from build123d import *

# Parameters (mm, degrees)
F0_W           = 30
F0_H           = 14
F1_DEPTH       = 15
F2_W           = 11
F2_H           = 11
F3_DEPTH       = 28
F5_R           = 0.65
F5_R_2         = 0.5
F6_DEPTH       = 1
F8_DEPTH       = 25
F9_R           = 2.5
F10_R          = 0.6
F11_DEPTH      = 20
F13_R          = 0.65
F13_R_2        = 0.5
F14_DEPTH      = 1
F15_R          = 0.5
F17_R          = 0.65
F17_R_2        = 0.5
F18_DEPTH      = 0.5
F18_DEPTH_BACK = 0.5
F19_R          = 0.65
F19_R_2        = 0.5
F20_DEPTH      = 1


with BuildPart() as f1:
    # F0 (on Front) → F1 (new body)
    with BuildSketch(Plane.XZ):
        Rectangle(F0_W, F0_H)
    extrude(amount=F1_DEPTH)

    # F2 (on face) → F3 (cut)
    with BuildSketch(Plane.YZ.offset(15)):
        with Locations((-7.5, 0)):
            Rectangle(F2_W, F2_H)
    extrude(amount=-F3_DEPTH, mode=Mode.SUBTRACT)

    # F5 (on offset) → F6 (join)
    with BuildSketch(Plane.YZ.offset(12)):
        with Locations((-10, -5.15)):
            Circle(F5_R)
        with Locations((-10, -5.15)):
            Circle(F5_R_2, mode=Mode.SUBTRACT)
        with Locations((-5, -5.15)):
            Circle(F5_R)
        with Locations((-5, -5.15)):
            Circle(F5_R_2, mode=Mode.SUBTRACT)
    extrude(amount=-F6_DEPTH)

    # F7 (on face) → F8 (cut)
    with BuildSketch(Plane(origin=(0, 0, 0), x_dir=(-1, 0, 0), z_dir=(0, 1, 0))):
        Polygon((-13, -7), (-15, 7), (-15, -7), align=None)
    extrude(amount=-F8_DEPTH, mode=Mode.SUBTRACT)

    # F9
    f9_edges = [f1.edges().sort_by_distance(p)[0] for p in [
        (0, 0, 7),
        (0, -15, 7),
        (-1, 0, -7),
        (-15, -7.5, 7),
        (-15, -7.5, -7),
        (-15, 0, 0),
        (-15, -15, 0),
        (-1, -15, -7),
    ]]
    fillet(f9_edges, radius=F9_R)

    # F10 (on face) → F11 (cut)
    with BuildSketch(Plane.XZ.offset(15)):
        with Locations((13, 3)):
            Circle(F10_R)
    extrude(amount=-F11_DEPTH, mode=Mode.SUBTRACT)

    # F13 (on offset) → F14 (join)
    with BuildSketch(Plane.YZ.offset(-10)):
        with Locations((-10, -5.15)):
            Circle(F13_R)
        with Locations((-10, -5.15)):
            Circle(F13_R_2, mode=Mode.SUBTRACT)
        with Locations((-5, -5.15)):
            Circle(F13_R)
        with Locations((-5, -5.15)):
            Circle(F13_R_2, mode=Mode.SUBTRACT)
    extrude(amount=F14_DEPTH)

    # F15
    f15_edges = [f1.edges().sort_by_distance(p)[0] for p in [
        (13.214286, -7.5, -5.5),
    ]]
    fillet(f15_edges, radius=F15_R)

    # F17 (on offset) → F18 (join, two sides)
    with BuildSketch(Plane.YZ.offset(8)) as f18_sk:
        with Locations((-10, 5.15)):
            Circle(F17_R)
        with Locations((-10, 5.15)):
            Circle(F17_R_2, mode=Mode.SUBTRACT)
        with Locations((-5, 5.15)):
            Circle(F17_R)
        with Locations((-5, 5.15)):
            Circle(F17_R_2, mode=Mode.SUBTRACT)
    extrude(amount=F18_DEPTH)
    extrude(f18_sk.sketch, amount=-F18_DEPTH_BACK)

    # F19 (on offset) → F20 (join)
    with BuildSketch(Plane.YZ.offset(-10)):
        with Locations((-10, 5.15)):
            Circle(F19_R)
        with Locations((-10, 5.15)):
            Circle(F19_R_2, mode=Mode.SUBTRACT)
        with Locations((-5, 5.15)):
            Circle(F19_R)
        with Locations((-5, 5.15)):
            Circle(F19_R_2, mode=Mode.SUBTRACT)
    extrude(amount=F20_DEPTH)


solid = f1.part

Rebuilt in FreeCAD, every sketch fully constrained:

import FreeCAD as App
import Part
import Sketcher


def edges_at(feature, points):
    """Names of the edges that pass closest to the given points."""
    edges = feature.Shape.Edges
    near = lambda p: min(range(len(edges)), key=lambda i: edges[i].distToShape(Part.Vertex(*p))[0])
    return sorted({f"Edge{near(p) + 1}" for p in points})


def add_polygon(sketch, points):
    """Adds a closed chain of lines whose ends are joined by coincident constraints."""
    first, n = sketch.GeometryCount, len(points)
    for a, b in zip(points, points[1:] + points[:1]):
        sketch.addGeometry(Part.LineSegment(App.Vector(*a, 0), App.Vector(*b, 0)), False)
    for i in range(n):
        sketch.addConstraint(Sketcher.Constraint("Coincident", first + i, 2, first + (i + 1) % n, 1))

doc = App.newDocument("Part")
body = doc.addObject("PartDesign::Body", "Body")

sketch1 = body.newObject("Sketcher::SketchObject", "Sketch")
sketch1.AttachmentSupport = (doc.getObject("XZ_Plane"), [""])
sketch1.MapMode = "FlatFace"
add_polygon(sketch1, [(-15, 7), (-15, -7), (15, -7), (15, 7)])
sketch1.addConstraint(Sketcher.Constraint("Vertical", 0))
sketch1.addConstraint(Sketcher.Constraint("Horizontal", 1))
sketch1.addConstraint(Sketcher.Constraint("Vertical", 2))
sketch1.addConstraint(Sketcher.Constraint("Horizontal", 3))
sketch1.addConstraint(Sketcher.Constraint("Symmetric", 0, 2, 2, 2, -1, 1))
sketch1.addConstraint(Sketcher.Constraint("DistanceX", 1, 1, 1, 2, 30.0))
sketch1.addConstraint(Sketcher.Constraint("DistanceY", 0, 2, 0, 1, 14.0))
pad1 = body.newObject("PartDesign::Pad", "Pad")
pad1.Profile = sketch1
pad1.Length = 15

sketch2 = body.newObject("Sketcher::SketchObject", "Sketch001")
sketch2.AttachmentSupport = (doc.getObject("YZ_Plane"), [""])
sketch2.MapMode = "FlatFace"
sketch2.AttachmentOffset = App.Placement(App.Vector(0, 0, 15), App.Rotation())
add_polygon(sketch2, [(-13, 6), (-13, -6), (-2, -6), (-2, 6)])
sketch2.addConstraint(Sketcher.Constraint("Vertical", 0))
sketch2.addConstraint(Sketcher.Constraint("Horizontal", 1))
sketch2.addConstraint(Sketcher.Constraint("Vertical", 2))
sketch2.addConstraint(Sketcher.Constraint("Horizontal", 3))
sketch2.addConstraint(Sketcher.Constraint("Equal", 3, 0))
sketch2.addConstraint(Sketcher.Constraint("DistanceX", 1, 1, 1, 2, 11.0))
sketch2.addConstraint(Sketcher.Constraint("DistanceX", 0, 2, -1, 1, 13.0))
sketch2.addConstraint(Sketcher.Constraint("DistanceY", 0, 2, -1, 1, 5.5))
pocket1 = body.newObject("PartDesign::Pocket", "Pocket")
pocket1.Profile = sketch2
pocket1.Length = 28

sketch3 = body.newObject("Sketcher::SketchObject", "Sketch002")
sketch3.AttachmentSupport = (doc.getObject("YZ_Plane"), [""])
sketch3.MapMode = "FlatFace"
sketch3.AttachmentOffset = App.Placement(App.Vector(0, 0, 12), App.Rotation())
sketch3.addGeometry(Part.Circle(App.Vector(-10, -5.2, 0), App.Vector(0, 0, 1), 0.7), False)
sketch3.addGeometry(Part.Circle(App.Vector(-10, -5.2, 0), App.Vector(0, 0, 1), 0.5), False)
sketch3.addGeometry(Part.Circle(App.Vector(-5, -5.2, 0), App.Vector(0, 0, 1), 0.7), False)
sketch3.addGeometry(Part.Circle(App.Vector(-5, -5.2, 0), App.Vector(0, 0, 1), 0.5), False)
sketch3.addConstraint(Sketcher.Constraint("Coincident", 1, 3, 0, 3))
sketch3.addConstraint(Sketcher.Constraint("Coincident", 3, 3, 2, 3))
sketch3.addConstraint(Sketcher.Constraint("Equal", 0, 2))
sketch3.addConstraint(Sketcher.Constraint("Equal", 1, 3))
sketch3.addConstraint(Sketcher.Constraint("Horizontal", 1, 3, 2, 3))
sketch3.addConstraint(Sketcher.Constraint("Diameter", 1, 1.0))
sketch3.addConstraint(Sketcher.Constraint("Diameter", 0, 1.3))
sketch3.addConstraint(Sketcher.Constraint("DistanceX", 0, 3, -1, 1, 10.0))
sketch3.addConstraint(Sketcher.Constraint("DistanceX", 2, 3, -1, 1, 5.0))
sketch3.addConstraint(Sketcher.Constraint("DistanceY", 0, 3, -1, 1, 5.15))
pad2 = body.newObject("PartDesign::Pad", "Pad001")
pad2.Profile = sketch3
pad2.Length = 1
pad2.Reversed = True

sketch4 = body.newObject("Sketcher::SketchObject", "Sketch003")
sketch4.AttachmentSupport = (doc.getObject("XZ_Plane"), [""])
sketch4.MapMode = "FlatFace"
add_polygon(sketch4, [(13, -7), (15, 7), (15, -7)])
sketch4.addConstraint(Sketcher.Constraint("Vertical", 1))
sketch4.addConstraint(Sketcher.Constraint("Horizontal", 2))
sketch4.addConstraint(Sketcher.Constraint("DistanceX", 2, 2, 2, 1, 2.0))
sketch4.addConstraint(Sketcher.Constraint("DistanceY", 1, 2, 1, 1, 14.0))
sketch4.addConstraint(Sketcher.Constraint("DistanceX", -1, 1, 0, 2, 15.0))
sketch4.addConstraint(Sketcher.Constraint("DistanceY", -1, 1, 0, 2, 7.0))
pocket2 = body.newObject("PartDesign::Pocket", "Pocket001")
pocket2.Profile = sketch4
pocket2.Length = 25
pocket2.Reversed = True
doc.recompute()

fillet = body.newObject("PartDesign::Fillet", "Fillet")
fillet.Base = (pocket2, edges_at(pocket2, [
    (0, 0, 7),
    (0, -15, 7),
    (-1, 0, -7),
    (-15, -7.5, 7),
    (-15, -7.5, -7),
    (-15, 0, 0),
    (-15, -15, 0),
    (-1, -15, -7),
]))
fillet.Radius = 2.5

sketch5 = body.newObject("Sketcher::SketchObject", "Sketch004")
sketch5.AttachmentSupport = (doc.getObject("XZ_Plane"), [""])
sketch5.MapMode = "FlatFace"
sketch5.AttachmentOffset = App.Placement(App.Vector(0, 0, 15), App.Rotation())
sketch5.addGeometry(Part.Circle(App.Vector(13, 3, 0), App.Vector(0, 0, 1), 0.6), False)
sketch5.addConstraint(Sketcher.Constraint("Diameter", 0, 1.2))
sketch5.addConstraint(Sketcher.Constraint("DistanceX", -1, 1, 0, 3, 13.0))
sketch5.addConstraint(Sketcher.Constraint("DistanceY", -1, 1, 0, 3, 3.0))
pocket3 = body.newObject("PartDesign::Pocket", "Pocket002")
pocket3.Profile = sketch5
pocket3.Length = 20

sketch6 = body.newObject("Sketcher::SketchObject", "Sketch005")
sketch6.AttachmentSupport = (doc.getObject("YZ_Plane"), [""])
sketch6.MapMode = "FlatFace"
sketch6.AttachmentOffset = App.Placement(App.Vector(0, 0, -10), App.Rotation())
sketch6.addGeometry(Part.Circle(App.Vector(-10, -5.2, 0), App.Vector(0, 0, 1), 0.7), False)
sketch6.addGeometry(Part.Circle(App.Vector(-10, -5.2, 0), App.Vector(0, 0, 1), 0.5), False)
sketch6.addGeometry(Part.Circle(App.Vector(-5, -5.2, 0), App.Vector(0, 0, 1), 0.7), False)
sketch6.addGeometry(Part.Circle(App.Vector(-5, -5.2, 0), App.Vector(0, 0, 1), 0.5), False)
sketch6.addConstraint(Sketcher.Constraint("Coincident", 1, 3, 0, 3))
sketch6.addConstraint(Sketcher.Constraint("Coincident", 3, 3, 2, 3))
sketch6.addConstraint(Sketcher.Constraint("Equal", 0, 2))
sketch6.addConstraint(Sketcher.Constraint("Equal", 1, 3))
sketch6.addConstraint(Sketcher.Constraint("Horizontal", 1, 3, 2, 3))
sketch6.addConstraint(Sketcher.Constraint("Diameter", 1, 1.0))
sketch6.addConstraint(Sketcher.Constraint("Diameter", 0, 1.3))
sketch6.addConstraint(Sketcher.Constraint("DistanceX", 0, 3, -1, 1, 10.0))
sketch6.addConstraint(Sketcher.Constraint("DistanceX", 2, 3, -1, 1, 5.0))
sketch6.addConstraint(Sketcher.Constraint("DistanceY", 0, 3, -1, 1, 5.15))
pad3 = body.newObject("PartDesign::Pad", "Pad002")
pad3.Profile = sketch6
pad3.Length = 1
doc.recompute()

fillet2 = body.newObject("PartDesign::Fillet", "Fillet001")
fillet2.Base = (pad3, edges_at(pad3, [(13.214, -7.5, -5.5)]))
fillet2.Radius = 0.5

sketch7 = body.newObject("Sketcher::SketchObject", "Sketch006")
sketch7.AttachmentSupport = (doc.getObject("YZ_Plane"), [""])
sketch7.MapMode = "FlatFace"
sketch7.AttachmentOffset = App.Placement(App.Vector(0, 0, 8), App.Rotation())
sketch7.addGeometry(Part.Circle(App.Vector(-10, 5.2, 0), App.Vector(0, 0, 1), 0.7), False)
sketch7.addGeometry(Part.Circle(App.Vector(-10, 5.2, 0), App.Vector(0, 0, 1), 0.5), False)
sketch7.addGeometry(Part.Circle(App.Vector(-5, 5.2, 0), App.Vector(0, 0, 1), 0.7), False)
sketch7.addGeometry(Part.Circle(App.Vector(-5, 5.2, 0), App.Vector(0, 0, 1), 0.5), False)
sketch7.addConstraint(Sketcher.Constraint("Coincident", 1, 3, 0, 3))
sketch7.addConstraint(Sketcher.Constraint("Coincident", 3, 3, 2, 3))
sketch7.addConstraint(Sketcher.Constraint("Equal", 0, 2))
sketch7.addConstraint(Sketcher.Constraint("Equal", 1, 3))
sketch7.addConstraint(Sketcher.Constraint("Horizontal", 1, 3, 2, 3))
sketch7.addConstraint(Sketcher.Constraint("Diameter", 1, 1.0))
sketch7.addConstraint(Sketcher.Constraint("Diameter", 0, 1.3))
sketch7.addConstraint(Sketcher.Constraint("DistanceX", 0, 3, -1, 1, 10.0))
sketch7.addConstraint(Sketcher.Constraint("DistanceX", 2, 3, -1, 1, 5.0))
sketch7.addConstraint(Sketcher.Constraint("DistanceY", -1, 1, 0, 3, 5.15))
pad4 = body.newObject("PartDesign::Pad", "Pad003")
pad4.Profile = sketch7
pad4.Type = "TwoLengths"
pad4.Length = 0.5
pad4.Length2 = 0.5

sketch8 = body.newObject("Sketcher::SketchObject", "Sketch007")
sketch8.AttachmentSupport = (doc.getObject("YZ_Plane"), [""])
sketch8.MapMode = "FlatFace"
sketch8.AttachmentOffset = App.Placement(App.Vector(0, 0, -10), App.Rotation())
sketch8.addGeometry(Part.Circle(App.Vector(-10, 5.2, 0), App.Vector(0, 0, 1), 0.7), False)
sketch8.addGeometry(Part.Circle(App.Vector(-10, 5.2, 0), App.Vector(0, 0, 1), 0.5), False)
sketch8.addGeometry(Part.Circle(App.Vector(-5, 5.2, 0), App.Vector(0, 0, 1), 0.7), False)
sketch8.addGeometry(Part.Circle(App.Vector(-5, 5.2, 0), App.Vector(0, 0, 1), 0.5), False)
sketch8.addConstraint(Sketcher.Constraint("Coincident", 1, 3, 0, 3))
sketch8.addConstraint(Sketcher.Constraint("Coincident", 3, 3, 2, 3))
sketch8.addConstraint(Sketcher.Constraint("Equal", 0, 2))
sketch8.addConstraint(Sketcher.Constraint("Equal", 1, 3))
sketch8.addConstraint(Sketcher.Constraint("Horizontal", 1, 3, 2, 3))
sketch8.addConstraint(Sketcher.Constraint("Diameter", 1, 1.0))
sketch8.addConstraint(Sketcher.Constraint("Diameter", 0, 1.3))
sketch8.addConstraint(Sketcher.Constraint("DistanceX", 0, 3, -1, 1, 10.0))
sketch8.addConstraint(Sketcher.Constraint("DistanceX", 2, 3, -1, 1, 5.0))
sketch8.addConstraint(Sketcher.Constraint("DistanceY", -1, 1, 0, 3, 5.15))
pad5 = body.newObject("PartDesign::Pad", "Pad004")
pad5.Profile = sketch8
pad5.Length = 1

doc.recompute()
